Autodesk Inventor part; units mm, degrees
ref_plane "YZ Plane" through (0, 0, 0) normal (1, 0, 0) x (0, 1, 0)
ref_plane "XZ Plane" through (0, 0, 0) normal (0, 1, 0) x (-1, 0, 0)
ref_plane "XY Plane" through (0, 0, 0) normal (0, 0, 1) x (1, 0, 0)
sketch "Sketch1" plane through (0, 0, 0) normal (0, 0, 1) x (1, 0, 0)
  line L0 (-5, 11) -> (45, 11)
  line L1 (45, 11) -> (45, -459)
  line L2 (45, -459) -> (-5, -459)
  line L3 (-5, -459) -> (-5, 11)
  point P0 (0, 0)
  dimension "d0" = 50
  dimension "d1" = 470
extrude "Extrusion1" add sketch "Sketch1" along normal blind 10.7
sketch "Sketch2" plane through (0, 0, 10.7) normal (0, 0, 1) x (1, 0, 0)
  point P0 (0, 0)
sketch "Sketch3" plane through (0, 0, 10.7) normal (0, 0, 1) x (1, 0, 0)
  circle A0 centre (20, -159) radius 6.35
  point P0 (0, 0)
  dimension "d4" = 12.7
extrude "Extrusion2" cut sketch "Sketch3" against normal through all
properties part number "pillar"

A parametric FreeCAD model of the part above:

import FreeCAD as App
import Part
import Sketcher
Q = App.Units.Quantity


def add_polygon(sketch, points):
    """Adds a closed chain of lines whose ends are joined by coincident constraints."""
    first, n = sketch.GeometryCount, len(points)
    for a, b in zip(points, points[1:] + points[:1]):
        sketch.addGeometry(Part.LineSegment(App.Vector(*a, 0), App.Vector(*b, 0)), False)
    for i in range(n):
        sketch.addConstraint(Sketcher.Constraint("Coincident", first + i, 2, first + (i + 1) % n, 1))

doc = App.newDocument("Part")
body = doc.addObject("PartDesign::Body", "Body")

sketch1 = doc.addObject("Sketcher::SketchObject", "Sketch")
body.addObject(sketch1)
sketch1.AttachmentSupport = (doc.XY_Plane, [""])
sketch1.MapMode = "FlatFace"
add_polygon(sketch1, [(45, 11), (-5, 11), (-5, -459), (45, -459)])
sketch1.addConstraint([
    Sketcher.Constraint("Horizontal", 0),
    Sketcher.Constraint("Vertical", 1),
    Sketcher.Constraint("Horizontal", 2),
    Sketcher.Constraint("Vertical", 3),
    Sketcher.Constraint("DistanceX", 0, 2, 0, 1, Q("50 mm")),
    Sketcher.Constraint("DistanceY", 1, 2, 1, 1, Q("470 mm")),
    Sketcher.Constraint("DistanceX", 0, 2, -1, 1, Q("5 mm")),
    Sketcher.Constraint("DistanceY", -1, 1, 0, 2, Q("11 mm")),
])
pad1 = doc.addObject("PartDesign::Pad", "Pad")
body.addObject(pad1)
pad1.Profile = sketch1
pad1.Length = 10.7

sketch2 = doc.addObject("Sketcher::SketchObject", "Sketch001")
body.addObject(sketch2)
sketch2.AttachmentSupport = (doc.XY_Plane, [""])
sketch2.MapMode = "FlatFace"
sketch2.AttachmentOffset = App.Placement(App.Vector(0, 0, 10.7), App.Rotation())
sketch2.addGeometry(Part.Circle(App.Vector(20, -159, 0), App.Vector(0, 0, 1), 6), False)
sketch2.addConstraint([
    Sketcher.Constraint("Diameter", 0, Q("12.7 mm")),
    Sketcher.Constraint("DistanceX", -1, 1, 0, 3, Q("20 mm")),
    Sketcher.Constraint("DistanceY", 0, 3, -1, 1, Q("159 mm")),
])
pocket1 = doc.addObject("PartDesign::Pocket", "Pocket")
body.addObject(pocket1)
pocket1.Profile = sketch2
pocket1.Type = "ThroughAll"

doc.recompute()
